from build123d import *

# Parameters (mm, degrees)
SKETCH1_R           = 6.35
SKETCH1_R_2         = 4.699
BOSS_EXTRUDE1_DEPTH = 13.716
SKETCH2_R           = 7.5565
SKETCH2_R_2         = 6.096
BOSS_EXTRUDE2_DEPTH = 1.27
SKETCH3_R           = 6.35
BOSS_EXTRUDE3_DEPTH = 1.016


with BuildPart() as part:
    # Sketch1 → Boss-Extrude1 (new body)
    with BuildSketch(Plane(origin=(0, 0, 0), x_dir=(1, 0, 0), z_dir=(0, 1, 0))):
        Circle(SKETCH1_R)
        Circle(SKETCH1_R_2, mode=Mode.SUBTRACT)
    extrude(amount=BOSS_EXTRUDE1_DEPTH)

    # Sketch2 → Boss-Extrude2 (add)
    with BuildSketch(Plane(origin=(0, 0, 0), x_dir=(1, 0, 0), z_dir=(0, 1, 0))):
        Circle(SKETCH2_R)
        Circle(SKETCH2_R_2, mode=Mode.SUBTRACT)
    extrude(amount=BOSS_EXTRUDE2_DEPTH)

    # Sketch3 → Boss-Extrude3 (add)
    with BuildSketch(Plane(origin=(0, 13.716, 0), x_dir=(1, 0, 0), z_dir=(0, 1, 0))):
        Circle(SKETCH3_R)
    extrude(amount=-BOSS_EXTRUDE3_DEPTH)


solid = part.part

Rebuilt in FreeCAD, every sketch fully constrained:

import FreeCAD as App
import Part
import Sketcher

V = App.Vector
Q = App.Units.Quantity

doc = App.newDocument("Part")
params = doc.addObject("Spreadsheet::Sheet", "Params")
for row, (alias, value) in enumerate([
    ("sketch1_diameter", "0.5 in"),
    ("sketch1_diameter2", "0.37 in"),
    ("pad1_length", "0.54 in"),
    ("sketch2_diameter", "0.48 in"),
    ("sketch2_diameter2", "0.595 in"),
    ("pad2_length", "0.05 in"),
    ("sketch3_diameter", "0.5 in"),
    ("pad3_length", "0.04 in"),
], start=1):
    params.set(f"A{row}", alias)
    params.set(f"B{row}", "=" + value)
    params.setAlias(f"B{row}", alias)

body = doc.addObject("PartDesign::Body", "Body")

sketch1 = body.newObject("Sketcher::SketchObject", "Sketch")
sketch1.AttachmentSupport = (doc.getObject("XZ_Plane"), [""])
sketch1.MapMode = "FlatFace"
sketch1.addGeometry([
    Part.Circle(V(0, 0, 0), V(0, 0, 1), 6.3),
    Part.Circle(V(0, 0, 0), V(0, 0, 1), 4.7),
], False)
sketch1.addConstraint([
    Sketcher.Constraint("Coincident", 0, 3, -1, 1),
    Sketcher.Constraint("Coincident", 1, 3, -1, 1),
    Sketcher.Constraint("Diameter", 0, Q("0.5 in")),
    Sketcher.Constraint("Diameter", 1, Q("0.37 in")),
])
sketch1.setExpression("Constraints[2]", "Params.sketch1_diameter")
sketch1.setExpression("Constraints[3]", "Params.sketch1_diameter2")
pad1 = body.newObject("PartDesign::Pad", "Pad")
pad1.Profile = sketch1
pad1.setExpression("Length", "Params.pad1_length")
pad1.Reversed = True

sketch2 = body.newObject("Sketcher::SketchObject", "Sketch001")
sketch2.AttachmentSupport = (doc.getObject("XZ_Plane"), [""])
sketch2.MapMode = "FlatFace"
sketch2.addGeometry([
    Part.Circle(V(0, 0, 0), V(0, 0, 1), 8),
    Part.Circle(V(0, 0, 0), V(0, 0, 1), 6),
], False)
sketch2.addConstraint([
    Sketcher.Constraint("Coincident", 0, 3, -1, 1),
    Sketcher.Constraint("Coincident", 1, 3, -1, 1),
    Sketcher.Constraint("Diameter", 1, Q("0.48 in")),
    Sketcher.Constraint("Diameter", 0, Q("0.595 in")),
])
sketch2.setExpression("Constraints[2]", "Params.sketch2_diameter")
sketch2.setExpression("Constraints[3]", "Params.sketch2_diameter2")
pad2 = body.newObject("PartDesign::Pad", "Pad001")
pad2.Profile = sketch2
pad2.setExpression("Length", "Params.pad2_length")
pad2.Reversed = True

sketch3 = body.newObject("Sketcher::SketchObject", "Sketch002")
sketch3.AttachmentSupport = (doc.getObject("XZ_Plane"), [""])
sketch3.MapMode = "FlatFace"
sketch3.AttachmentOffset = App.Placement(V(0, 0, -0.54 * 25.4), App.Rotation())
sketch3.addGeometry(Part.Circle(V(0, 0, 0), V(0, 0, 1), 6), False)
sketch3.addConstraint([
    Sketcher.Constraint("Coincident", 0, 3, -1, 1),
    Sketcher.Constraint("Diameter", 0, Q("0.5 in")),
])
sketch3.setExpression("Constraints[1]", "Params.sketch3_diameter")
pad3 = body.newObject("PartDesign::Pad", "Pad002")
pad3.Profile = sketch3
pad3.setExpression("Length", "Params.pad3_length")

doc.recompute()
